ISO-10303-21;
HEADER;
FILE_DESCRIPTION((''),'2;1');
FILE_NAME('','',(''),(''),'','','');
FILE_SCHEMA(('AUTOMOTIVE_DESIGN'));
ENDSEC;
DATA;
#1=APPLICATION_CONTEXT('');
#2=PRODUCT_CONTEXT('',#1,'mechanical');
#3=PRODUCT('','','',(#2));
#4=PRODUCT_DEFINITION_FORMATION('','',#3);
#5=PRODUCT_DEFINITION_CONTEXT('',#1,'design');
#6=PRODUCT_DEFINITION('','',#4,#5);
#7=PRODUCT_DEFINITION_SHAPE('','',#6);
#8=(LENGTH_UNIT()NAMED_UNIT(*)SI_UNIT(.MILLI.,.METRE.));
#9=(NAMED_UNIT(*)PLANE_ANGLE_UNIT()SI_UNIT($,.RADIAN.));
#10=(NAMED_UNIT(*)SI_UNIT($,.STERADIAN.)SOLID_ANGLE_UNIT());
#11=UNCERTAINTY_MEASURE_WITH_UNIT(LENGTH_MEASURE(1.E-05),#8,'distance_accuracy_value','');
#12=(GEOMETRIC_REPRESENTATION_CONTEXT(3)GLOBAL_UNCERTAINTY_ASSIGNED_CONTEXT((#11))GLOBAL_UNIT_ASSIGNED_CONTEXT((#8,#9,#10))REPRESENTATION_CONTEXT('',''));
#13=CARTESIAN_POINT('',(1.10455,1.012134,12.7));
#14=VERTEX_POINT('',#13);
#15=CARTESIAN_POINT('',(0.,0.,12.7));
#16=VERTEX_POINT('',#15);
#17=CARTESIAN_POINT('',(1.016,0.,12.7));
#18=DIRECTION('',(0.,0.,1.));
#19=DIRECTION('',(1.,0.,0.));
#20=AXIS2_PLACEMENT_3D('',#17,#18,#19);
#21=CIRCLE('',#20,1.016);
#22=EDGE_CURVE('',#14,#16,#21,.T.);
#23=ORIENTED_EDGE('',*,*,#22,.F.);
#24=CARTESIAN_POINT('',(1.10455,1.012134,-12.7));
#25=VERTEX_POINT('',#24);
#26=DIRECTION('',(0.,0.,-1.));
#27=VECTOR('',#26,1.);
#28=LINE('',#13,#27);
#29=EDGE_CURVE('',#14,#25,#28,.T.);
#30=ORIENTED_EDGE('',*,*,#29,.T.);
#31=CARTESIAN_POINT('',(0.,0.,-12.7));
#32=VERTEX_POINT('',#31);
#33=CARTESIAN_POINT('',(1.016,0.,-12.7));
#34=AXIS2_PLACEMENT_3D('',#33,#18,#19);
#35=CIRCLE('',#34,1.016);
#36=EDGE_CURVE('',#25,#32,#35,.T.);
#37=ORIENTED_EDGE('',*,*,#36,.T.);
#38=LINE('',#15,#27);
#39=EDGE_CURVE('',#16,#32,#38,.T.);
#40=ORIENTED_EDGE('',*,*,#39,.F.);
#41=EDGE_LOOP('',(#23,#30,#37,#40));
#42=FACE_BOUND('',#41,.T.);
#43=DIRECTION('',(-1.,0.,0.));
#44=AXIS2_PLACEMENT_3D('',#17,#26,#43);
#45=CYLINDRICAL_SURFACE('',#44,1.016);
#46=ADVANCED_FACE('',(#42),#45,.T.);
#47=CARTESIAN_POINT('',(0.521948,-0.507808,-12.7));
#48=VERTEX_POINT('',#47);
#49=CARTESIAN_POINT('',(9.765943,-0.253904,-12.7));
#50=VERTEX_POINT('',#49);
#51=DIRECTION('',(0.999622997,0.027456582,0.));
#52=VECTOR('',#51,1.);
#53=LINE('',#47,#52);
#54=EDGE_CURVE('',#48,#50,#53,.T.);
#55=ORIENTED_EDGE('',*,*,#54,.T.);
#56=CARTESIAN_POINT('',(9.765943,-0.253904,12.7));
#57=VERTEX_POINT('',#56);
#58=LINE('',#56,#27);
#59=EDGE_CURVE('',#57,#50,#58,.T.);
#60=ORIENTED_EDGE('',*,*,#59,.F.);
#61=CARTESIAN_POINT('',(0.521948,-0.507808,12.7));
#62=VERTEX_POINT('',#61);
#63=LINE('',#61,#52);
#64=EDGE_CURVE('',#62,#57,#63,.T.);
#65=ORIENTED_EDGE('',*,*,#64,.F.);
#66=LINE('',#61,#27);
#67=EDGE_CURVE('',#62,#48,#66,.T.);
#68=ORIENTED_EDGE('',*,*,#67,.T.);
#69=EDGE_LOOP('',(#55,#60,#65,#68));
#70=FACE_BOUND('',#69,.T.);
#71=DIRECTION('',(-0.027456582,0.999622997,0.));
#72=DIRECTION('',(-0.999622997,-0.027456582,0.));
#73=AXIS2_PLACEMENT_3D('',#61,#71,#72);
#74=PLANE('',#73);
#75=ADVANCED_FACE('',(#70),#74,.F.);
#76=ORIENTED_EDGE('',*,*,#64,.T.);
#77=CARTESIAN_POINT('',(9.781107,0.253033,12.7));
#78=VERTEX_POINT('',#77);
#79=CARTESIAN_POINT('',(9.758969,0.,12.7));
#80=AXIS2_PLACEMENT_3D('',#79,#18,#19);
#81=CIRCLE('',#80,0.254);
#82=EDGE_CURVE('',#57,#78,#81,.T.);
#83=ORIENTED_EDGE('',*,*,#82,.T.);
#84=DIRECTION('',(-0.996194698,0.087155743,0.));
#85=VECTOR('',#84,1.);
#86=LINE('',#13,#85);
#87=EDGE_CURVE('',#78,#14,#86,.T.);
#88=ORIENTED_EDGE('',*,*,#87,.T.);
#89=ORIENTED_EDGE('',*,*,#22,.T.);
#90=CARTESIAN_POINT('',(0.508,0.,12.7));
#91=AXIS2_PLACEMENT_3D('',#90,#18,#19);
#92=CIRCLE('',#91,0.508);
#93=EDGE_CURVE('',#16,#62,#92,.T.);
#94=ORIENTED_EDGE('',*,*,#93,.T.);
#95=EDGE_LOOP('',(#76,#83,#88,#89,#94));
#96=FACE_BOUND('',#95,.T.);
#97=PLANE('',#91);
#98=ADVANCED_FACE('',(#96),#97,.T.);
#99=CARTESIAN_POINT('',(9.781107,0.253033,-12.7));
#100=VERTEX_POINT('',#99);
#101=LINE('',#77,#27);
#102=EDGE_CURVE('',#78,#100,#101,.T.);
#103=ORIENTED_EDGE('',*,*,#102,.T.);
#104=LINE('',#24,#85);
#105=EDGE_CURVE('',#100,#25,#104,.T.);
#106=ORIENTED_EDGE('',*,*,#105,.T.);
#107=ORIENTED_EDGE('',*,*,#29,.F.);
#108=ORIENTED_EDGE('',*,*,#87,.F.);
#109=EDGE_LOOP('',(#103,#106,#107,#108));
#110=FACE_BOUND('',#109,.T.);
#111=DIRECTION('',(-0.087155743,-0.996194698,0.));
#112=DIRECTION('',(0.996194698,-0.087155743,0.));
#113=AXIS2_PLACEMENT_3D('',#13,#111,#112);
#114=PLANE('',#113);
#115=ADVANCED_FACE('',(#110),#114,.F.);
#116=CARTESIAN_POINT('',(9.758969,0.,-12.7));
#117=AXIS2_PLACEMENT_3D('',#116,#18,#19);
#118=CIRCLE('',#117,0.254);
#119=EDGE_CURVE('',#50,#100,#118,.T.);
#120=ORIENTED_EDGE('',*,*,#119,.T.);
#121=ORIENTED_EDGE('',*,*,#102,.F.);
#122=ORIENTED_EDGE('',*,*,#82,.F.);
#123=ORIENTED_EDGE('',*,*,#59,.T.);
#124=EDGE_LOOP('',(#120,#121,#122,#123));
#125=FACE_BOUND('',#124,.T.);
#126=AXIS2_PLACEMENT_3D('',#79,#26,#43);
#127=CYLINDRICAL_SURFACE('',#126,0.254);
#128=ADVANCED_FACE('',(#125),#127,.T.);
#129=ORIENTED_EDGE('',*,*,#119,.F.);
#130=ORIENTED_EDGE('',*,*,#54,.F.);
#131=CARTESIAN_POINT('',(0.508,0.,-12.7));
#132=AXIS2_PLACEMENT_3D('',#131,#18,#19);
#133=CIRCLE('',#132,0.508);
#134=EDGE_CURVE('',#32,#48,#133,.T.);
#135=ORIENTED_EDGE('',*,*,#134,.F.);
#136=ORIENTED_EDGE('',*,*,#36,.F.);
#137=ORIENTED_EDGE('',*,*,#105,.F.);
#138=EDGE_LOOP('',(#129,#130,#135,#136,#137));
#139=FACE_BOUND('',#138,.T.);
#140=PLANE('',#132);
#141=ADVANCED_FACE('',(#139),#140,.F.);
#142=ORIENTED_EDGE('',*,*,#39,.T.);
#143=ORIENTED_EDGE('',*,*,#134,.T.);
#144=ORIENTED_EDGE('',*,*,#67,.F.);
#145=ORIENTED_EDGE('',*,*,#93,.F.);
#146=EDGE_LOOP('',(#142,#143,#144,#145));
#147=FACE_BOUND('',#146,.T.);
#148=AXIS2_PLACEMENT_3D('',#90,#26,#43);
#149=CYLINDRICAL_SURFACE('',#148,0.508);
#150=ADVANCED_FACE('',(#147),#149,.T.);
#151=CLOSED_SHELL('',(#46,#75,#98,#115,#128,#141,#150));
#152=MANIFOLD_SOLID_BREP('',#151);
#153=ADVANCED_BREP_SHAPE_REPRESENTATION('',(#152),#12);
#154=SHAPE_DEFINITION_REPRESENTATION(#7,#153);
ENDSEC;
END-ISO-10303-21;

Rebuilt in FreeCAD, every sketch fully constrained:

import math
import FreeCAD as App
import Part
import Sketcher
from FreeCAD import Vector
Q = App.Units.Quantity

doc = App.newDocument("Part")
body = doc.addObject("PartDesign::Body", "Body")

# Sketch on XY plane
sketch1 = body.newObject("Sketcher::SketchObject", "Sketch")
sketch1.AttachmentSupport = (doc.getObject("XY_Plane"), [""])
sketch1.MapMode = "FlatFace"
sketch1.addGeometry(Part.LineSegment(Vector(9.78, 0.25, 0), Vector(1.1, 1.01, 0)), False)
sketch1.addGeometry(Part.ArcOfCircle(Part.Circle(Vector(1.02, 0, 0), Vector(0, 0, 1), 1.02), math.radians(85), math.radians(180)), False)
sketch1.addGeometry(Part.ArcOfCircle(Part.Circle(Vector(0.51, 0, 0), Vector(0, 0, 1), 0.51), math.radians(180), math.radians(272)), False)
sketch1.addGeometry(Part.LineSegment(Vector(0.52, -0.51, 0), Vector(9.77, -0.25, 0)), False)
sketch1.addGeometry(Part.ArcOfCircle(Part.Circle(Vector(9.76, 0, 0), Vector(0, 0, 1), 0.25), math.radians(-88), math.radians(85)), False)
sketch1.addConstraint(Sketcher.Constraint("Tangent", 0, 2, 1, 1))
sketch1.addConstraint(Sketcher.Constraint("Tangent", 1, 2, 2, 1))
sketch1.addConstraint(Sketcher.Constraint("Tangent", 2, 2, 3, 1))
sketch1.addConstraint(Sketcher.Constraint("Tangent", 3, 2, 4, 1))
sketch1.addConstraint(Sketcher.Constraint("Tangent", 4, 2, 0, 1))
sketch1.addConstraint(Sketcher.Constraint("Coincident", 1, 2, -1, 1))
sketch1.addConstraint(Sketcher.Constraint("PointOnObject", 1, 3, -1))
sketch1.addConstraint(Sketcher.Constraint("PointOnObject", 4, 3, -1))
sketch1.addConstraint(Sketcher.Constraint("Radius", 1, Q("0.04 in")))
sketch1.addConstraint(Sketcher.Constraint("Radius", 2, Q("0.02 in")))
sketch1.addConstraint(Sketcher.Constraint("Radius", 4, Q("0.01 in")))
sketch1.addConstraint(Sketcher.Constraint("Angle", 0, Q("175 deg")))
pad1 = body.newObject("PartDesign::Pad", "Pad")
pad1.Profile = sketch1
pad1.Length = Q("1 in")
pad1.Midplane = True

doc.recompute()
